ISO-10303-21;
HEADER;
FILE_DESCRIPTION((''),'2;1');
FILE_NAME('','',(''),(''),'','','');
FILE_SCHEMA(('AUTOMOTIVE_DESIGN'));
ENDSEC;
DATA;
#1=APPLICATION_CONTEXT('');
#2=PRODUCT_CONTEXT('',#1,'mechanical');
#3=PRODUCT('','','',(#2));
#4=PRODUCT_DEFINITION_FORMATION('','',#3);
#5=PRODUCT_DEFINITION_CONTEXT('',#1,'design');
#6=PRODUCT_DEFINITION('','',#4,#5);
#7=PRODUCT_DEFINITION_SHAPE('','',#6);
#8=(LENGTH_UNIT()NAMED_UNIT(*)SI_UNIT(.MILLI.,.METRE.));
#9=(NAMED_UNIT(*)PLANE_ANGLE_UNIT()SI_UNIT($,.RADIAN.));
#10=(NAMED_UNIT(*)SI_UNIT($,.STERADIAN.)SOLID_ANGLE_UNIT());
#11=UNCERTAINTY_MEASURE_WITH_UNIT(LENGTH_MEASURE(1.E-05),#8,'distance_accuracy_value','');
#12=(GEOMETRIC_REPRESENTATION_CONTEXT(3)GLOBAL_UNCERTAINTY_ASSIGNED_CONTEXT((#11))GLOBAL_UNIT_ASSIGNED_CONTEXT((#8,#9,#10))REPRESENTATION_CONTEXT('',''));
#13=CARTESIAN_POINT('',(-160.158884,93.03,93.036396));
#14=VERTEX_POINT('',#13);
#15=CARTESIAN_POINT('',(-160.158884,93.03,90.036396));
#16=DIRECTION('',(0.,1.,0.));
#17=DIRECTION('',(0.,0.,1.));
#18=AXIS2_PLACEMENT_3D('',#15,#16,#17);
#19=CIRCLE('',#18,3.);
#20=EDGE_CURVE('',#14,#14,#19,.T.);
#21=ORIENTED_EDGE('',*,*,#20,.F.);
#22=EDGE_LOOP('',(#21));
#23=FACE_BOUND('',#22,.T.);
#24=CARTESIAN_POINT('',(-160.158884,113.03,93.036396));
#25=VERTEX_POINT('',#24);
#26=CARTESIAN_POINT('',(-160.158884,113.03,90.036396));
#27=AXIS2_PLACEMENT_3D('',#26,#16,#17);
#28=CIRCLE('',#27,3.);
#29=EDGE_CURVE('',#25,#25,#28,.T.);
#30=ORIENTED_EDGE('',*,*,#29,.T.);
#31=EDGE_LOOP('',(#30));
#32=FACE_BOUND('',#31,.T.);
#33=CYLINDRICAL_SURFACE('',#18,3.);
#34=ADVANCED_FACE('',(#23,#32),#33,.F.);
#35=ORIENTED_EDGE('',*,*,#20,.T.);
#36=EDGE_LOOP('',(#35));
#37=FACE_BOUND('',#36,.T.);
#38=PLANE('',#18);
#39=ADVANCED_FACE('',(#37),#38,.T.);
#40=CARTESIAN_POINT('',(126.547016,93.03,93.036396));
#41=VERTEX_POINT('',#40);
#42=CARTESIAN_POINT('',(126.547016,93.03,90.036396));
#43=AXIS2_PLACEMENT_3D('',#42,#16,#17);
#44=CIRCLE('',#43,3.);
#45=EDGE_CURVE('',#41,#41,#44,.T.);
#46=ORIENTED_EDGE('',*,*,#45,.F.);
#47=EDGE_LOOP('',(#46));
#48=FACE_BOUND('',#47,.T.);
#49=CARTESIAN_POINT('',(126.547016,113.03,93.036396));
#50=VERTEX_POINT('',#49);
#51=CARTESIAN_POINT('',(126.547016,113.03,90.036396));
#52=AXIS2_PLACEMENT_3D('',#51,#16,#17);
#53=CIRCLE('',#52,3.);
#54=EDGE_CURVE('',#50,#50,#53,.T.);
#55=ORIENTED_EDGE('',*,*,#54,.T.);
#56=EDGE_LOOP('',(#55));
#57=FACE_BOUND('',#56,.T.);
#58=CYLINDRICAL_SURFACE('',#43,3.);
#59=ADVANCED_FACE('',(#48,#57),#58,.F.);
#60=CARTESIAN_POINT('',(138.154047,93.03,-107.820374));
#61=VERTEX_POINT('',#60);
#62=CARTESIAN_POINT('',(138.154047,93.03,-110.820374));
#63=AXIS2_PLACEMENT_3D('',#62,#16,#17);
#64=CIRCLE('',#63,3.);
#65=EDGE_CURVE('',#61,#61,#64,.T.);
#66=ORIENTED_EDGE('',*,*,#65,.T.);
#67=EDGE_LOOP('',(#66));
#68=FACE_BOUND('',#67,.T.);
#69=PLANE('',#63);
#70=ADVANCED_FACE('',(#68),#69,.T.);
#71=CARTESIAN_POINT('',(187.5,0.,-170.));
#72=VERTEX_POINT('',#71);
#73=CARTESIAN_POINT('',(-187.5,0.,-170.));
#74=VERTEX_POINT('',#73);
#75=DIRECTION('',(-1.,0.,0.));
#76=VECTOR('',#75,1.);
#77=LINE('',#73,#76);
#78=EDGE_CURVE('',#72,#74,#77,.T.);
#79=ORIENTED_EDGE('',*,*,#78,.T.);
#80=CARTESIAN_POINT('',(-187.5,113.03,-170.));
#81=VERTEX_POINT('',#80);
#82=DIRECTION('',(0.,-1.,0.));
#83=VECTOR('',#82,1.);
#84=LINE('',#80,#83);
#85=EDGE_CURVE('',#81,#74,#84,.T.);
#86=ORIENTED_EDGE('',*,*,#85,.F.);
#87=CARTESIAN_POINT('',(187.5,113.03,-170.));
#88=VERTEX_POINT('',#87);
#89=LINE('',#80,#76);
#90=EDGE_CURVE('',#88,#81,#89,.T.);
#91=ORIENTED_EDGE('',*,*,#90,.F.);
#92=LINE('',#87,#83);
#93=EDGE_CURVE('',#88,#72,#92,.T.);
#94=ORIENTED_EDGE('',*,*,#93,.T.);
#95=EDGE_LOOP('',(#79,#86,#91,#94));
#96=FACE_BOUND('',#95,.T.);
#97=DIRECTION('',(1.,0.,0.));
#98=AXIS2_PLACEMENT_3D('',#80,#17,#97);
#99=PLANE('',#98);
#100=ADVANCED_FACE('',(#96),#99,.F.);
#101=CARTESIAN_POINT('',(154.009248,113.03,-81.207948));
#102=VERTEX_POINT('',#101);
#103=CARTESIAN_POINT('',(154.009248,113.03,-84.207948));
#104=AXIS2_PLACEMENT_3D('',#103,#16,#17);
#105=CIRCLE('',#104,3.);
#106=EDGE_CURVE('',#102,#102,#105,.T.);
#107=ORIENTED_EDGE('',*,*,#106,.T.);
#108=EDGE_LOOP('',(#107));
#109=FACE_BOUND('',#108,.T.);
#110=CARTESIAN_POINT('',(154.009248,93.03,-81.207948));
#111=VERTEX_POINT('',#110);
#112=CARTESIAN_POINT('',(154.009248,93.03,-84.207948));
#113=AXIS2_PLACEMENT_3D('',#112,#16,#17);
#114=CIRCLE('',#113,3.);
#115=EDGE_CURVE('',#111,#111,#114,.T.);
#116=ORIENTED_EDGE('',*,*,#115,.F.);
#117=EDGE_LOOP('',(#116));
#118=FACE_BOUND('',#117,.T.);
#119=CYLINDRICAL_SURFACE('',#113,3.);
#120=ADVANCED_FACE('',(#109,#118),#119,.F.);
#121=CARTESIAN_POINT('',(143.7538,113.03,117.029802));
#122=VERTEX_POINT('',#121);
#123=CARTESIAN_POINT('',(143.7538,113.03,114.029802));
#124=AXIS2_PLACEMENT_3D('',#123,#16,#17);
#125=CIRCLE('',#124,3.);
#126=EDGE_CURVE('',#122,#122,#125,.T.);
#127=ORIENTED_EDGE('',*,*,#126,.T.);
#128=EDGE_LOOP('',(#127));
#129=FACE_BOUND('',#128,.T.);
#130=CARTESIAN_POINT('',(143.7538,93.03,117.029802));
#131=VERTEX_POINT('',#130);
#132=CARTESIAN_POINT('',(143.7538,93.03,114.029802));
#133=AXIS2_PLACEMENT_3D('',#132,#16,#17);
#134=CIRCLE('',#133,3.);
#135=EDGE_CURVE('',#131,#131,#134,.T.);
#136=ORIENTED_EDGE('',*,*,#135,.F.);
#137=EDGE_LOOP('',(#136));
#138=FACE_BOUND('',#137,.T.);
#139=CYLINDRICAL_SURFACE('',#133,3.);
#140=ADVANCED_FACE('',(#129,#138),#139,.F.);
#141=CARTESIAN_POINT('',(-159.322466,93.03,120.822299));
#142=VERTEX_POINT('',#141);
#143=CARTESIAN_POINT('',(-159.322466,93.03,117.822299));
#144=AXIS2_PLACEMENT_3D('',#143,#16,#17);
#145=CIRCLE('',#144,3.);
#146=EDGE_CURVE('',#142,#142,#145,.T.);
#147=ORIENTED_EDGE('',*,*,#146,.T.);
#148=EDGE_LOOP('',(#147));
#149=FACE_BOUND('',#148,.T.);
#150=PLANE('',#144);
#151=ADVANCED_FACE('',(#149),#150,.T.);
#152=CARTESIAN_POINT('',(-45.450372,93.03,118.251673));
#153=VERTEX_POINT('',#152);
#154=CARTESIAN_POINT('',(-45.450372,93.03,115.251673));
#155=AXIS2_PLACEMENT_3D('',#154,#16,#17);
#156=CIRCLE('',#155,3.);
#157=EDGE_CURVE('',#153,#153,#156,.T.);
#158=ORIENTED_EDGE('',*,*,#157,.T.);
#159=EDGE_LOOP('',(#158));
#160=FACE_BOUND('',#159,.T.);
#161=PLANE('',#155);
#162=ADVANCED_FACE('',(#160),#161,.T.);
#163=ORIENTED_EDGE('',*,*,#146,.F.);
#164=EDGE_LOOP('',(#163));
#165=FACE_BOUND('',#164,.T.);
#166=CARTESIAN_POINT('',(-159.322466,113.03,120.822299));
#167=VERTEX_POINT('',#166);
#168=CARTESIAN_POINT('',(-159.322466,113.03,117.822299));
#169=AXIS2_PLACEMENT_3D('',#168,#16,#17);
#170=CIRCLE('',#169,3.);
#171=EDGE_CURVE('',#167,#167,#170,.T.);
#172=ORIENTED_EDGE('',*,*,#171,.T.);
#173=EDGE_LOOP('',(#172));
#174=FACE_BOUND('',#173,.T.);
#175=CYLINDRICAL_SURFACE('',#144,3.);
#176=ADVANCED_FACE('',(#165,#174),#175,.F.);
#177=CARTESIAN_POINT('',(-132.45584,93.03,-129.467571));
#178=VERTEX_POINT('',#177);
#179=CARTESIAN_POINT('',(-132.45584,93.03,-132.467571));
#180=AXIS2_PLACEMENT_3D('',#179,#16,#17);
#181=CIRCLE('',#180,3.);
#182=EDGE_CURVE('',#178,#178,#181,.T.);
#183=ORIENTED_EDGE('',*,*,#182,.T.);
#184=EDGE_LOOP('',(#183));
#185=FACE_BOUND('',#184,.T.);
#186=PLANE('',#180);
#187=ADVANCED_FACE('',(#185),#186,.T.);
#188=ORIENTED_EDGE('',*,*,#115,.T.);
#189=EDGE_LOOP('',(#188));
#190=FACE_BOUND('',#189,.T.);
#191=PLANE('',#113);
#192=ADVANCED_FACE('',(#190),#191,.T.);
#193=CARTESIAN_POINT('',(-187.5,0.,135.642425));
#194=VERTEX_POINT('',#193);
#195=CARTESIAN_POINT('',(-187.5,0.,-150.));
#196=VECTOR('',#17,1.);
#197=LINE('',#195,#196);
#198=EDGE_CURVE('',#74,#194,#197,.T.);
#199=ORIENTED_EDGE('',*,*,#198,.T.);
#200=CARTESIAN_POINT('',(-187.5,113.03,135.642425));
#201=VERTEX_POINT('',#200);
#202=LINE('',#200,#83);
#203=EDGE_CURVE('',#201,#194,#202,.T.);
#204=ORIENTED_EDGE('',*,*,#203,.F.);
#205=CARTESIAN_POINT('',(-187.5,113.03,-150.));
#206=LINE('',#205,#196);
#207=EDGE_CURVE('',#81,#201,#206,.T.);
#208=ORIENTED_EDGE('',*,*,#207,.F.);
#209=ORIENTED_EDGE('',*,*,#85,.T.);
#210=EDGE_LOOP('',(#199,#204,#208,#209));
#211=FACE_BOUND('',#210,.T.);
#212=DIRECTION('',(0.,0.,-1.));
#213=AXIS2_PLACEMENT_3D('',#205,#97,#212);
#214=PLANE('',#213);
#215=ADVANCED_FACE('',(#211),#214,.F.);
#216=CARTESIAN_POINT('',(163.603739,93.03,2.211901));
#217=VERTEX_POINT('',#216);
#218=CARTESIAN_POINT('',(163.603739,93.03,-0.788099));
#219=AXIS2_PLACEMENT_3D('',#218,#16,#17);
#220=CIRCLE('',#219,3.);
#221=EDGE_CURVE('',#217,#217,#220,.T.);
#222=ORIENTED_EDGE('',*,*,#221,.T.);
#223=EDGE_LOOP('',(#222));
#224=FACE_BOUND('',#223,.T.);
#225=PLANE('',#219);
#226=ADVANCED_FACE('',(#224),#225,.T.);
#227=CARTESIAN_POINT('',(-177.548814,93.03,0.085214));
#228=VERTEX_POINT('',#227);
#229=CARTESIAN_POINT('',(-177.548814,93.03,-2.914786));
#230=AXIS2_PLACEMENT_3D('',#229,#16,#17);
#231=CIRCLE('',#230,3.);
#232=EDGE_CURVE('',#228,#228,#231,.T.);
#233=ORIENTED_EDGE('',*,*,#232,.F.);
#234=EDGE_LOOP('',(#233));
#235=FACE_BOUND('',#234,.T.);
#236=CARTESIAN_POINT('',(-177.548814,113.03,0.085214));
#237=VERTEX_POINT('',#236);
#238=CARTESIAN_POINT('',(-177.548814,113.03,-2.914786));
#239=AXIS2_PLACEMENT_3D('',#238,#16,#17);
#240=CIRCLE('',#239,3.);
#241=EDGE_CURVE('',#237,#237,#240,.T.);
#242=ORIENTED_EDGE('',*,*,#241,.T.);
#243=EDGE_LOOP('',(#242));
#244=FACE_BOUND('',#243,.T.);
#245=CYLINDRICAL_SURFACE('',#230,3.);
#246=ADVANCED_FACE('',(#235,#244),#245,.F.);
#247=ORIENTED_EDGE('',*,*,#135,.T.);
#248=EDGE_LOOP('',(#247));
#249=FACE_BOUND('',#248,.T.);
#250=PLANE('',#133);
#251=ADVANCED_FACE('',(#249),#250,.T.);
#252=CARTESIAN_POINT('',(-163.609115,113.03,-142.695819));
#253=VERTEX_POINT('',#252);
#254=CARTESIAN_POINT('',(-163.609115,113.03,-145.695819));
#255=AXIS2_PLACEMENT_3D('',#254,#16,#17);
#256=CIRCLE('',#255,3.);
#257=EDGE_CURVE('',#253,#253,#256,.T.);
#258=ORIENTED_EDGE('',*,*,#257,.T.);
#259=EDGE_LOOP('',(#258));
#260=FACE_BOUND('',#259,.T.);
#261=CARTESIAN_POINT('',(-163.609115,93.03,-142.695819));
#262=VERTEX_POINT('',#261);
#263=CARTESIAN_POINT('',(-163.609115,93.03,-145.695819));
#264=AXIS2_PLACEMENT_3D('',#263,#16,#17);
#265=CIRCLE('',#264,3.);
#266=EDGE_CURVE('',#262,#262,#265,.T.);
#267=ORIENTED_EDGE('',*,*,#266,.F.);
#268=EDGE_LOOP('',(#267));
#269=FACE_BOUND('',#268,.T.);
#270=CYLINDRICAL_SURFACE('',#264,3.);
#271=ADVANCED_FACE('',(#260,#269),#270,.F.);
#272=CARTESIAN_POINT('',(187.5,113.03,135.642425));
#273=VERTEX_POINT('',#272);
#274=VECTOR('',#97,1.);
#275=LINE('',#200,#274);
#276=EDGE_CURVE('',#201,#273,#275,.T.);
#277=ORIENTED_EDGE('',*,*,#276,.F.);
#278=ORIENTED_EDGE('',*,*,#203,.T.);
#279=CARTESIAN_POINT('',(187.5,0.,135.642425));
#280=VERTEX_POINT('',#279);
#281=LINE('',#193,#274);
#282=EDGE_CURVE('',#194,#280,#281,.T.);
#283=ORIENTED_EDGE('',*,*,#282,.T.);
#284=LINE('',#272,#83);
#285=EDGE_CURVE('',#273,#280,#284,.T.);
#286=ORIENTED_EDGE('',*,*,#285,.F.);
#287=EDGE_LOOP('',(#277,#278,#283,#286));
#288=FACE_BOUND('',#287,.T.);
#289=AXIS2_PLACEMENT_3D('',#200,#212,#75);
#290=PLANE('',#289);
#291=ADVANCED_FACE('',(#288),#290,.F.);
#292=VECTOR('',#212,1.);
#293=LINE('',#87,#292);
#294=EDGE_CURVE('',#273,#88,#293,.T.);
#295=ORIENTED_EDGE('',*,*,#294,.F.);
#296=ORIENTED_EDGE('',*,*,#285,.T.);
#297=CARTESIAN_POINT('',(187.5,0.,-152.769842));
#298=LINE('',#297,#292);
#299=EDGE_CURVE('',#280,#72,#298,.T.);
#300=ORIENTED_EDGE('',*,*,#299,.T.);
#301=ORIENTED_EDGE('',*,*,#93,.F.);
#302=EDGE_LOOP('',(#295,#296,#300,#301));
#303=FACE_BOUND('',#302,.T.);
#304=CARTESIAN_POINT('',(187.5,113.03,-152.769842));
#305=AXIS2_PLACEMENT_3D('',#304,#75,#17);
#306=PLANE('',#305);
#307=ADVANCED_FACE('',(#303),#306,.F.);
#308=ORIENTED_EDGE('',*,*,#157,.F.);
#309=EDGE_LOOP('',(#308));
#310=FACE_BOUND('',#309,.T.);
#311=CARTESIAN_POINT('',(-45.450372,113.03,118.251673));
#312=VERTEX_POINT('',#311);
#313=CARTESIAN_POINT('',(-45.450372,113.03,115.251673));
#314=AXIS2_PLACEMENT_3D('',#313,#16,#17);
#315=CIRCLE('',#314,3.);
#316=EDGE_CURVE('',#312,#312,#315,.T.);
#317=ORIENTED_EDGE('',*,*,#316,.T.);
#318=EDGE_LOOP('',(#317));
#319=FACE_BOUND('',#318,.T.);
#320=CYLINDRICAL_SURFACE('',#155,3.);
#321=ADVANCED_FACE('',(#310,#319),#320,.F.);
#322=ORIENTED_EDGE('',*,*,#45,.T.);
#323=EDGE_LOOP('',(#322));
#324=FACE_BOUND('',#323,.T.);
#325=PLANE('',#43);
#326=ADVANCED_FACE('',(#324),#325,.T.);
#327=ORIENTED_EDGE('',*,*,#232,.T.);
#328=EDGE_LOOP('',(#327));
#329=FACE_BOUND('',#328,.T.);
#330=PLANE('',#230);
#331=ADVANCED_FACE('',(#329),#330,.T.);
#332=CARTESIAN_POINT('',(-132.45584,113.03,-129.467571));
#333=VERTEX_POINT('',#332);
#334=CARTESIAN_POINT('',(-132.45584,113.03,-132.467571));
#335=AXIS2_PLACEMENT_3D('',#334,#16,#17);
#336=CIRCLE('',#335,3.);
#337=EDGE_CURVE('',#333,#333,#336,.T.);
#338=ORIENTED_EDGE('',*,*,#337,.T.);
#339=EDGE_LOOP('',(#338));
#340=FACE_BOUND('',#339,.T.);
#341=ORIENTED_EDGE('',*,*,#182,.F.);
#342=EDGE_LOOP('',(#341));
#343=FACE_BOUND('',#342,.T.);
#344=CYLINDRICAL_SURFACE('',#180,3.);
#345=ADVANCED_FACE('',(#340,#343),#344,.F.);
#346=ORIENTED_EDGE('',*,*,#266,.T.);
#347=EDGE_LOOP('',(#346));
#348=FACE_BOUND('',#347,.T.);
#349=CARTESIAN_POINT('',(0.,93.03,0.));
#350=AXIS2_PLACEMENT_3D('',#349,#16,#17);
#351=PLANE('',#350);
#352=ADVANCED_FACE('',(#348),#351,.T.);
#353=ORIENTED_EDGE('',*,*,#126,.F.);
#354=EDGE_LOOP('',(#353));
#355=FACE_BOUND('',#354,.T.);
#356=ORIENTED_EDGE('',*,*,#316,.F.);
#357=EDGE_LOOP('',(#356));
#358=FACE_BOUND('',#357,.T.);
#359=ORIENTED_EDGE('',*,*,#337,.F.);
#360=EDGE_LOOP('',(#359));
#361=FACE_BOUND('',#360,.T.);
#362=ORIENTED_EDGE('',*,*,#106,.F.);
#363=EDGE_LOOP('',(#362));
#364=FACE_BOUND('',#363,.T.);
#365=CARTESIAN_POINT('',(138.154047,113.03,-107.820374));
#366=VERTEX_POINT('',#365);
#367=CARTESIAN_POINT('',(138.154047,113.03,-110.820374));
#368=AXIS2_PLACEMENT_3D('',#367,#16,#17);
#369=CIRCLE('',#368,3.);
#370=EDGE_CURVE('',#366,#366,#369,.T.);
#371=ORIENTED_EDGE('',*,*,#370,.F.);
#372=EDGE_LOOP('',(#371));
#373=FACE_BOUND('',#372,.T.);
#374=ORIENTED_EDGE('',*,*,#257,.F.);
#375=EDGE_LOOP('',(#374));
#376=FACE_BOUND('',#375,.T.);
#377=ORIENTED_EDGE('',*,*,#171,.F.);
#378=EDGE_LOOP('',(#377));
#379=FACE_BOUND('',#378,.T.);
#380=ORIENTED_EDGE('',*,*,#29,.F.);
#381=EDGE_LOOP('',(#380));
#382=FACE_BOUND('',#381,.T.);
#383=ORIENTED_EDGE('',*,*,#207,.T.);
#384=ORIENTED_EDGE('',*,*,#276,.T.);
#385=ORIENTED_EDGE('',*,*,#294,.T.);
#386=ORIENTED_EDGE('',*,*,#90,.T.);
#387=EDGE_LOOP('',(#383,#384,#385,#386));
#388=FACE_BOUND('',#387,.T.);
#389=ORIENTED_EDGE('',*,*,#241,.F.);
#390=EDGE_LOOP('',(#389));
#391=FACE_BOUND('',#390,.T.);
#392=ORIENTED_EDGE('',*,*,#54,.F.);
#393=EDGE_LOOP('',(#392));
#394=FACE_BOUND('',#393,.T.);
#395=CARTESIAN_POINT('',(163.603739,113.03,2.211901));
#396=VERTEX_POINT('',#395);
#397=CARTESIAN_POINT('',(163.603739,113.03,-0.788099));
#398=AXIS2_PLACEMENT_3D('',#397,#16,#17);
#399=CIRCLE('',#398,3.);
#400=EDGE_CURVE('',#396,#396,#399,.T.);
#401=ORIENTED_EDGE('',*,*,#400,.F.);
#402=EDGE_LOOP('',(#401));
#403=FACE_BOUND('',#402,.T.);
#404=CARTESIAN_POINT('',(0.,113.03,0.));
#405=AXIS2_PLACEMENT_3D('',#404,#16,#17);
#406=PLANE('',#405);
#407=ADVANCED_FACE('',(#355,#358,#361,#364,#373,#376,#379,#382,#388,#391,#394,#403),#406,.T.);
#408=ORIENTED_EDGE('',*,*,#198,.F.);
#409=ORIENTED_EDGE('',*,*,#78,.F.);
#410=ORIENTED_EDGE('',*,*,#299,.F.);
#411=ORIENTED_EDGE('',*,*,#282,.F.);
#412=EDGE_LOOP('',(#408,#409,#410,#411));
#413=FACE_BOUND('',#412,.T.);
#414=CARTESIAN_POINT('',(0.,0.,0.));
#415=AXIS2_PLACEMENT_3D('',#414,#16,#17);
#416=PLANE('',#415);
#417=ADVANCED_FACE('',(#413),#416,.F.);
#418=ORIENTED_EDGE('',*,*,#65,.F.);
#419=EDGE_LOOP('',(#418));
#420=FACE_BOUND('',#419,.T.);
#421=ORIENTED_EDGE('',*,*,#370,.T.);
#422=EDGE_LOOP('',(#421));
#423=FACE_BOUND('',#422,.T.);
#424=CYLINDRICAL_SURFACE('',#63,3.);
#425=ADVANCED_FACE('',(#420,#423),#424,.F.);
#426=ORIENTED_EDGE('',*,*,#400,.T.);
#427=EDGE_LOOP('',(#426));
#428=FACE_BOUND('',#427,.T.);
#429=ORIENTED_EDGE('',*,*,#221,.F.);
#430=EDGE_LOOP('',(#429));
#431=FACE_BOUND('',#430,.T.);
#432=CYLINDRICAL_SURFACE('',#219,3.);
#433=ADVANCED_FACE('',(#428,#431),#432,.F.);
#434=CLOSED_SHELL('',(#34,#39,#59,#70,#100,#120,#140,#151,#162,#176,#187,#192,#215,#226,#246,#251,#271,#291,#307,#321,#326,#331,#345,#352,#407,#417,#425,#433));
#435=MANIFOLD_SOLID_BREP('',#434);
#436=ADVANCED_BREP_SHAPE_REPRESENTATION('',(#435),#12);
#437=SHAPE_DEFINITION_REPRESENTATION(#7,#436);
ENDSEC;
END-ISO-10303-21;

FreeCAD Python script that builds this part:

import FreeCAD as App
import Part
import Sketcher

V = App.Vector
Q = App.Units.Quantity


def add_polygon(sketch, points):
    """Adds a closed chain of lines whose ends are joined by coincident constraints."""
    first, n = sketch.GeometryCount, len(points)
    for a, b in zip(points, points[1:] + points[:1]):
        sketch.addGeometry(Part.LineSegment(App.Vector(*a, 0), App.Vector(*b, 0)), False)
    for i in range(n):
        sketch.addConstraint(Sketcher.Constraint("Coincident", first + i, 2, first + (i + 1) % n, 1))

doc = App.newDocument("Part")
body = doc.addObject("PartDesign::Body", "Body")

sketch1 = body.newObject("Sketcher::SketchObject", "Sketch")
sketch1.AttachmentSupport = (doc.getObject("XZ_Plane"), [""])
sketch1.MapMode = "FlatFace"
add_polygon(sketch1, [(-187.5, -170), (-187.5, 135.642425), (187.5, 135.642425), (187.5, -170)])
sketch1.addConstraint(Sketcher.Constraint("Vertical", 0))
sketch1.addConstraint(Sketcher.Constraint("Horizontal", 1))
sketch1.addConstraint(Sketcher.Constraint("Vertical", 2))
sketch1.addConstraint(Sketcher.Constraint("Horizontal", 3))
sketch1.addConstraint(Sketcher.Constraint("DistanceX", 1, 1, 1, 2, Q("375 mm")))
sketch1.addConstraint(Sketcher.Constraint("DistanceY", 2, 2, -1, 1, Q("170 mm")))
sketch1.addConstraint(Sketcher.Constraint("DistanceX", 0, 2, -1, 1, Q("187.5 mm")))
sketch1.addConstraint(Sketcher.Constraint("DistanceY", 0, 1, 0, 2, Q("305.642425 mm")))
pad1 = body.newObject("PartDesign::Pad", "Pad")
pad1.Profile = sketch1
pad1.Length = 113.03
pad1.Reversed = True

sketch2 = body.newObject("Sketcher::SketchObject", "Sketch001")
sketch2.AttachmentSupport = (doc.getObject("XZ_Plane"), [""])
sketch2.MapMode = "FlatFace"
sketch2.AttachmentOffset = App.Placement(V(0, 0, -113.03), App.Rotation())
sketch2.addGeometry(Part.Circle(V(-163.609115, -145.695819, 0), V(0, 0, 1), 3), False)
sketch2.addGeometry(Part.Circle(V(-132.45584, -132.467571, 0), V(0, 0, 1), 3), False)
sketch2.addGeometry(Part.Circle(V(-177.548814, -2.914786, 0), V(0, 0, 1), 3), False)
sketch2.addGeometry(Part.Circle(V(-160.158884, 90.036396, 0), V(0, 0, 1), 3), False)
sketch2.addGeometry(Part.Circle(V(-159.322466, 117.822299, 0), V(0, 0, 1), 3), False)
sketch2.addGeometry(Part.Circle(V(-45.450372, 115.251673, 0), V(0, 0, 1), 3), False)
sketch2.addGeometry(Part.Circle(V(143.7538, 114.029802, 0), V(0, 0, 1), 3), False)
sketch2.addGeometry(Part.Circle(V(126.547016, 90.036396, 0), V(0, 0, 1), 3), False)
sketch2.addGeometry(Part.Circle(V(163.603739, -0.788099, 0), V(0, 0, 1), 3), False)
sketch2.addGeometry(Part.Circle(V(154.009248, -84.207948, 0), V(0, 0, 1), 3), False)
sketch2.addGeometry(Part.Circle(V(138.154047, -110.820374, 0), V(0, 0, 1), 3), False)
sketch2.addConstraint(Sketcher.Constraint("Equal", 0, 1))
sketch2.addConstraint(Sketcher.Constraint("Equal", 1, 2))
sketch2.addConstraint(Sketcher.Constraint("Equal", 2, 3))
sketch2.addConstraint(Sketcher.Constraint("Equal", 3, 4))
sketch2.addConstraint(Sketcher.Constraint("Equal", 4, 5))
sketch2.addConstraint(Sketcher.Constraint("Equal", 5, 6))
sketch2.addConstraint(Sketcher.Constraint("Equal", 6, 7))
sketch2.addConstraint(Sketcher.Constraint("Equal", 7, 8))
sketch2.addConstraint(Sketcher.Constraint("Equal", 8, 9))
sketch2.addConstraint(Sketcher.Constraint("Equal", 9, 10))
sketch2.addConstraint(Sketcher.Constraint("Horizontal", 3, 3, 7, 3))
sketch2.addConstraint(Sketcher.Constraint("Diameter", 0, Q("6 mm")))
sketch2.addConstraint(Sketcher.Constraint("DistanceY", -1, 1, 4, 3, Q("117.822299 mm")))
sketch2.addConstraint(Sketcher.Constraint("DistanceX", -1, 1, 6, 3, Q("143.7538 mm")))
sketch2.addConstraint(Sketcher.Constraint("DistanceY", -1, 1, 6, 3, Q("114.029802 mm")))
sketch2.addConstraint(Sketcher.Constraint("DistanceY", 8, 3, -1, 1, Q("0.788099 mm")))
sketch2.addConstraint(Sketcher.Constraint("DistanceX", 2, 3, 0, 3, Q("13.939699 mm")))
sketch2.addConstraint(Sketcher.Constraint("DistanceX", 3, 3, 7, 3, Q("286.7059 mm")))
sketch2.addConstraint(Sketcher.Constraint("DistanceX", 10, 3, 9, 3, Q("15.8552 mm")))
sketch2.addConstraint(Sketcher.Constraint("DistanceY", 0, 3, -1, 1, Q("145.695819 mm")))
sketch2.addConstraint(Sketcher.Constraint("DistanceX", 1, 3, -1, 1, Q("132.45584 mm")))
sketch2.addConstraint(Sketcher.Constraint("DistanceY", 1, 3, -1, 1, Q("132.467571 mm")))
sketch2.addConstraint(Sketcher.Constraint("DistanceX", -1, 1, 8, 3, Q("163.603739 mm")))
sketch2.addConstraint(Sketcher.Constraint("DistanceX", 2, 3, 3, 3, Q("17.38993 mm")))
sketch2.addConstraint(Sketcher.Constraint("DistanceX", 3, 3, 4, 3, Q("0.836419 mm")))
sketch2.addConstraint(Sketcher.Constraint("DistanceX", 3, 3, 5, 3, Q("114.708512 mm")))
sketch2.addConstraint(Sketcher.Constraint("DistanceY", 2, 3, 5, 3, Q("118.166458 mm")))
sketch2.addConstraint(Sketcher.Constraint("DistanceY", 0, 3, 5, 3, Q("260.947491 mm")))
sketch2.addConstraint(Sketcher.Constraint("DistanceX", 5, 3, 8, 3, Q("209.054112 mm")))
sketch2.addConstraint(Sketcher.Constraint("DistanceX", 9, 3, 8, 3, Q("9.594491 mm")))
sketch2.addConstraint(Sketcher.Constraint("DistanceY", 9, 3, 8, 3, Q("83.419848 mm")))
sketch2.addConstraint(Sketcher.Constraint("DistanceY", 10, 3, 7, 3, Q("200.85677 mm")))
sketch2.addConstraint(Sketcher.Constraint("DistanceY", -1, 1, 3, 3, Q("90.036396 mm")))
pocket1 = body.newObject("PartDesign::Pocket", "Pocket")
pocket1.Profile = sketch2
pocket1.Length = 20
pocket1.Reversed = True

doc.recompute()
